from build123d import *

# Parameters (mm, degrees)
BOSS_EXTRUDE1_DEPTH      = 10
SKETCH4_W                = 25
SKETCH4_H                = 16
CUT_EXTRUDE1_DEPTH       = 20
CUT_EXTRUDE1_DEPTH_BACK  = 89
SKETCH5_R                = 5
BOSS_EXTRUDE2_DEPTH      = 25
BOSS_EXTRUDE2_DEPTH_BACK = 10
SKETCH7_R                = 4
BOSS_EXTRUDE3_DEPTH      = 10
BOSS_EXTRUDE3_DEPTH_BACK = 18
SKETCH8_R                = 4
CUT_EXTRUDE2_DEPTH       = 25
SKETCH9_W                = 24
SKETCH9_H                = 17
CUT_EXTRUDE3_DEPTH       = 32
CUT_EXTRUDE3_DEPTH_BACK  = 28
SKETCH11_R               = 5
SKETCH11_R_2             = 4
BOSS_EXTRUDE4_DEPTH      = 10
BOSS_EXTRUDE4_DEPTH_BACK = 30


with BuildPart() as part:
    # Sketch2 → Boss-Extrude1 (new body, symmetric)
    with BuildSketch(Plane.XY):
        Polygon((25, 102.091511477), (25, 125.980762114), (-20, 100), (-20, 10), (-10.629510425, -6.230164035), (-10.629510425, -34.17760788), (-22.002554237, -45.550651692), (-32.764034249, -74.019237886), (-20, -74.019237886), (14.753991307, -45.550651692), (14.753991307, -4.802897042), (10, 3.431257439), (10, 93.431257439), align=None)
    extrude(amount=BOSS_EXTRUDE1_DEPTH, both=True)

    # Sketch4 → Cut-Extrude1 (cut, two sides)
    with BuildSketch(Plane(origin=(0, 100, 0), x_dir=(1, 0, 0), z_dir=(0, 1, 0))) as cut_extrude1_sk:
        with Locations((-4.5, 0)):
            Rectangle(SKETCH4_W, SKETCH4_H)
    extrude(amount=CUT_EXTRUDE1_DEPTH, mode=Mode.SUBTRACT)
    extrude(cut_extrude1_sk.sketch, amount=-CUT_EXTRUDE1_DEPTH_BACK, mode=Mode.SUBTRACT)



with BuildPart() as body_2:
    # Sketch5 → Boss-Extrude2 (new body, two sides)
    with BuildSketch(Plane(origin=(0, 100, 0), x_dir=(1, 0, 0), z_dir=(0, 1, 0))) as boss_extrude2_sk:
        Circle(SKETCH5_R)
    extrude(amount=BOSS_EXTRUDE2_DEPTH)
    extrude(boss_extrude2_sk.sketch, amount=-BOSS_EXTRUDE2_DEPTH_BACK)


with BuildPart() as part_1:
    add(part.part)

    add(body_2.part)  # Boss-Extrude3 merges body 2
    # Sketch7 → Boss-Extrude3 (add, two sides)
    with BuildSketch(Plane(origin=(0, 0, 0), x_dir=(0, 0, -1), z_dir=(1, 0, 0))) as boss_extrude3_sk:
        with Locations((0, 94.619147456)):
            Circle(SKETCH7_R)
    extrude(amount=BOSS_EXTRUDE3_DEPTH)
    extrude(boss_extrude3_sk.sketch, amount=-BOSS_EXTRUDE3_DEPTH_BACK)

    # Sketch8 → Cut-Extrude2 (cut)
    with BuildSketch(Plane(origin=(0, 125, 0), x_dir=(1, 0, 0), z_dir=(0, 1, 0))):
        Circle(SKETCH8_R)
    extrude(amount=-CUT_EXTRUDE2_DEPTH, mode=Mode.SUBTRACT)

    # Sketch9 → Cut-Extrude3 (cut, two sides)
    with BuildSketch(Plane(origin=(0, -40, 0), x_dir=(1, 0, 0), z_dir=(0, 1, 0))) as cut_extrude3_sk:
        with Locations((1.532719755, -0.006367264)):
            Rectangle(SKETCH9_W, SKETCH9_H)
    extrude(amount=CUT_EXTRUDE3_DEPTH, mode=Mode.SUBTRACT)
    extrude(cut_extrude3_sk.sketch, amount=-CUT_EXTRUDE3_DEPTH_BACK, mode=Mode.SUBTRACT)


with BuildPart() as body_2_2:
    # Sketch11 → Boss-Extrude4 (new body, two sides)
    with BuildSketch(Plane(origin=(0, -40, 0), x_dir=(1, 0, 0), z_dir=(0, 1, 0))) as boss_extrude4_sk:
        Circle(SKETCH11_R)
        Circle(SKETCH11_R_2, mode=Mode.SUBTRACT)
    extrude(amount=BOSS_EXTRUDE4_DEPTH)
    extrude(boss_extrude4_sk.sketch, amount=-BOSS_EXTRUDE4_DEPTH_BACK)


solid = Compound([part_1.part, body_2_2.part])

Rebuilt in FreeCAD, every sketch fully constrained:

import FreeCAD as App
import Part
import Sketcher

V = App.Vector
Q = App.Units.Quantity


def add_polygon(sketch, points):
    """Adds a closed chain of lines whose ends are joined by coincident constraints."""
    first, n = sketch.GeometryCount, len(points)
    for a, b in zip(points, points[1:] + points[:1]):
        sketch.addGeometry(Part.LineSegment(App.Vector(*a, 0), App.Vector(*b, 0)), False)
    for i in range(n):
        sketch.addConstraint(Sketcher.Constraint("Coincident", first + i, 2, first + (i + 1) % n, 1))

doc = App.newDocument("Part")
body = doc.addObject("PartDesign::Body", "Body")

sketch1 = doc.addObject("Sketcher::SketchObject", "Sketch")
body.addObject(sketch1)
sketch1.AttachmentSupport = (doc.XY_Plane, [""])
sketch1.MapMode = "FlatFace"
add_polygon(sketch1, [(25, 102), (25, 126), (-20, 100), (-20, 10), (-11, -6), (-11, -34), (-22, -46), (-33, -74), (-20, -74), (15, -46), (15, -5), (10, 3), (10, 93)])
sketch1.addConstraint([
    Sketcher.Constraint("Vertical", 0),
    Sketcher.Constraint("Vertical", 2),
    Sketcher.Constraint("Vertical", 4),
    Sketcher.Constraint("Horizontal", 7),
    Sketcher.Constraint("Vertical", 9),
    Sketcher.Constraint("Vertical", 11),
    Sketcher.Constraint("Perpendicular", 1, 3),
    Sketcher.Constraint("Parallel", 3, 10),
    Sketcher.Constraint("Perpendicular", 10, 12),
    Sketcher.Constraint("Horizontal", 5, 2, 8, 2),
    Sketcher.Constraint("Vertical", 2, 2, 7, 2),
    Sketcher.Constraint("Equal", 2, 11),
    Sketcher.Constraint("DistanceY", 2, 2, 2, 1, 90.0),
    Sketcher.Constraint("Angle", 1, Q("-150 deg")),
    Sketcher.Constraint("Angle", 5, Q("-135 deg")),
    Sketcher.Constraint("DistanceX", -1, 1, 0, 2, 25.0),
    Sketcher.Constraint("DistanceX", 1, 2, -1, 1, 20.0),
    Sketcher.Constraint("DistanceY", -1, 1, 1, 2, 100.0),
    Sketcher.Constraint("DistanceX", -1, 1, 10, 2, 10.0),
    Sketcher.Constraint("DistanceY", 0, 1, 0, 2, 23.889251),
    Sketcher.Constraint("DistanceX", 4, 2, 8, 2, 25.383502),
    Sketcher.Constraint("Distance", 3, 18.740979),
    Sketcher.Constraint("Distance", 6, 30.434682),
    Sketcher.Constraint("DistanceX", 7, 1, 7, 2, 12.764034),
    Sketcher.Constraint("DistanceY", 4, 2, 4, 1, 27.947444),
    Sketcher.Constraint("DistanceY", 9, 1, 9, 2, 40.747755),
])
pad1 = doc.addObject("PartDesign::Pad", "Pad")
body.addObject(pad1)
pad1.Profile = sketch1
pad1.Length = 20
pad1.Midplane = True

sketch2 = doc.addObject("Sketcher::SketchObject", "Sketch001")
body.addObject(sketch2)
sketch2.AttachmentSupport = (doc.XZ_Plane, [""])
sketch2.MapMode = "FlatFace"
sketch2.AttachmentOffset = App.Placement(V(0, 0, -100), App.Rotation())
add_polygon(sketch2, [(-17, -8), (-17, 8), (8, 8), (8, -8)])
sketch2.addConstraint([
    Sketcher.Constraint("Vertical", 0),
    Sketcher.Constraint("Horizontal", 1),
    Sketcher.Constraint("Vertical", 2),
    Sketcher.Constraint("Horizontal", 3),
    Sketcher.Constraint("DistanceX", 1, 1, 1, 2, 25.0),
    Sketcher.Constraint("DistanceY", 0, 1, 0, 2, 16.0),
    Sketcher.Constraint("DistanceX", 0, 2, -1, 1, 17.0),
    Sketcher.Constraint("DistanceY", -1, 1, 0, 2, 8.0),
])
pocket1 = doc.addObject("PartDesign::Pocket", "Pocket")
body.addObject(pocket1)
pocket1.Profile = sketch2
pocket1.Type = "TwoLengths"
pocket1.Length = 20
pocket1.Length2 = 89
body2 = doc.addObject("PartDesign::Body", "Body001")

sketch3 = doc.addObject("Sketcher::SketchObject", "Sketch002")
body2.addObject(sketch3)
sketch3.AttachmentSupport = (doc.getObject("XZ_Plane001"), [""])
sketch3.MapMode = "FlatFace"
sketch3.AttachmentOffset = App.Placement(V(0, 0, -100), App.Rotation())
sketch3.addGeometry(Part.Circle(V(0, 0, 0), V(0, 0, 1), 5), False)
sketch3.addConstraint([
    Sketcher.Constraint("Coincident", 0, 3, -1, 1),
    Sketcher.Constraint("Diameter", 0, 10.0),
])
pad2 = doc.addObject("PartDesign::Pad", "Pad001")
body2.addObject(pad2)
pad2.Profile = sketch3
pad2.Type = "TwoLengths"
pad2.Length = 25
pad2.Length2 = 10
pad2.Reversed = True
body.AllowCompound = True
doc.recompute()

boolean = doc.addObject("PartDesign::Boolean", "Boolean")
body.addObject(boolean)
boolean.Type = "Fuse"
boolean.addObjects([body2])

sketch4 = doc.addObject("Sketcher::SketchObject", "Sketch003")
body.addObject(sketch4)
sketch4.AttachmentSupport = (doc.YZ_Plane, [""])
sketch4.MapMode = "FlatFace"
sketch4.addGeometry(Part.Circle(V(94.6, 0, 0), V(0, 0, 1), 4), False)
sketch4.addConstraint([
    Sketcher.Constraint("PointOnObject", 0, 3, -1),
    Sketcher.Constraint("Diameter", 0, 8.0),
    Sketcher.Constraint("DistanceX", -1, 1, 0, 3, 94.619147),
])
pad3 = doc.addObject("PartDesign::Pad", "Pad002")
body.addObject(pad3)
pad3.Profile = sketch4
pad3.Type = "TwoLengths"
pad3.Length = 10
pad3.Length2 = 18

sketch5 = doc.addObject("Sketcher::SketchObject", "Sketch004")
body.addObject(sketch5)
sketch5.AttachmentSupport = (doc.XZ_Plane, [""])
sketch5.MapMode = "FlatFace"
sketch5.AttachmentOffset = App.Placement(V(0, 0, -125), App.Rotation())
sketch5.addGeometry(Part.Circle(V(0, 0, 0), V(0, 0, 1), 4), False)
sketch5.addConstraint([
    Sketcher.Constraint("Coincident", 0, 3, -1, 1),
    Sketcher.Constraint("Diameter", 0, 8.0),
])
pocket2 = doc.addObject("PartDesign::Pocket", "Pocket001")
body.addObject(pocket2)
pocket2.Profile = sketch5
pocket2.Length = 25
pocket2.Reversed = True

sketch6 = doc.addObject("Sketcher::SketchObject", "Sketch005")
body.addObject(sketch6)
sketch6.AttachmentSupport = (doc.XZ_Plane, [""])
sketch6.MapMode = "FlatFace"
sketch6.AttachmentOffset = App.Placement(V(0, 0, 40), App.Rotation())
add_polygon(sketch6, [(-10, -8), (-10, 9), (14, 9), (14, -8)])
sketch6.addConstraint([
    Sketcher.Constraint("Vertical", 0),
    Sketcher.Constraint("Horizontal", 1),
    Sketcher.Constraint("Vertical", 2),
    Sketcher.Constraint("Horizontal", 3),
    Sketcher.Constraint("DistanceX", 1, 1, 1, 2, 24.0),
    Sketcher.Constraint("DistanceY", 0, 1, 0, 2, 17.0),
    Sketcher.Constraint("DistanceX", 0, 2, -1, 1, 10.46728),
    Sketcher.Constraint("DistanceY", -1, 1, 0, 2, 8.506367),
])
pocket3 = doc.addObject("PartDesign::Pocket", "Pocket002")
body.addObject(pocket3)
pocket3.Profile = sketch6
pocket3.Type = "TwoLengths"
pocket3.Length = 32
pocket3.Length2 = 28
body3 = doc.addObject("PartDesign::Body", "Body002")

sketch7 = doc.addObject("Sketcher::SketchObject", "Sketch006")
body3.addObject(sketch7)
sketch7.AttachmentSupport = (doc.getObject("XZ_Plane002"), [""])
sketch7.MapMode = "FlatFace"
sketch7.AttachmentOffset = App.Placement(V(0, 0, 40), App.Rotation())
sketch7.addGeometry([
    Part.Circle(V(0, 0, 0), V(0, 0, 1), 5),
    Part.Circle(V(0, 0, 0), V(0, 0, 1), 4),
], False)
sketch7.addConstraint([
    Sketcher.Constraint("Coincident", 0, 3, -1, 1),
    Sketcher.Constraint("Coincident", 1, 3, -1, 1),
    Sketcher.Constraint("Diameter", 0, 10.0),
    Sketcher.Constraint("Diameter", 1, 8.0),
])
pad4 = doc.addObject("PartDesign::Pad", "Pad003")
body3.addObject(pad4)
pad4.Profile = sketch7
pad4.Type = "TwoLengths"
pad4.Length = 10
pad4.Length2 = 30
pad4.Reversed = True

doc.recompute()
